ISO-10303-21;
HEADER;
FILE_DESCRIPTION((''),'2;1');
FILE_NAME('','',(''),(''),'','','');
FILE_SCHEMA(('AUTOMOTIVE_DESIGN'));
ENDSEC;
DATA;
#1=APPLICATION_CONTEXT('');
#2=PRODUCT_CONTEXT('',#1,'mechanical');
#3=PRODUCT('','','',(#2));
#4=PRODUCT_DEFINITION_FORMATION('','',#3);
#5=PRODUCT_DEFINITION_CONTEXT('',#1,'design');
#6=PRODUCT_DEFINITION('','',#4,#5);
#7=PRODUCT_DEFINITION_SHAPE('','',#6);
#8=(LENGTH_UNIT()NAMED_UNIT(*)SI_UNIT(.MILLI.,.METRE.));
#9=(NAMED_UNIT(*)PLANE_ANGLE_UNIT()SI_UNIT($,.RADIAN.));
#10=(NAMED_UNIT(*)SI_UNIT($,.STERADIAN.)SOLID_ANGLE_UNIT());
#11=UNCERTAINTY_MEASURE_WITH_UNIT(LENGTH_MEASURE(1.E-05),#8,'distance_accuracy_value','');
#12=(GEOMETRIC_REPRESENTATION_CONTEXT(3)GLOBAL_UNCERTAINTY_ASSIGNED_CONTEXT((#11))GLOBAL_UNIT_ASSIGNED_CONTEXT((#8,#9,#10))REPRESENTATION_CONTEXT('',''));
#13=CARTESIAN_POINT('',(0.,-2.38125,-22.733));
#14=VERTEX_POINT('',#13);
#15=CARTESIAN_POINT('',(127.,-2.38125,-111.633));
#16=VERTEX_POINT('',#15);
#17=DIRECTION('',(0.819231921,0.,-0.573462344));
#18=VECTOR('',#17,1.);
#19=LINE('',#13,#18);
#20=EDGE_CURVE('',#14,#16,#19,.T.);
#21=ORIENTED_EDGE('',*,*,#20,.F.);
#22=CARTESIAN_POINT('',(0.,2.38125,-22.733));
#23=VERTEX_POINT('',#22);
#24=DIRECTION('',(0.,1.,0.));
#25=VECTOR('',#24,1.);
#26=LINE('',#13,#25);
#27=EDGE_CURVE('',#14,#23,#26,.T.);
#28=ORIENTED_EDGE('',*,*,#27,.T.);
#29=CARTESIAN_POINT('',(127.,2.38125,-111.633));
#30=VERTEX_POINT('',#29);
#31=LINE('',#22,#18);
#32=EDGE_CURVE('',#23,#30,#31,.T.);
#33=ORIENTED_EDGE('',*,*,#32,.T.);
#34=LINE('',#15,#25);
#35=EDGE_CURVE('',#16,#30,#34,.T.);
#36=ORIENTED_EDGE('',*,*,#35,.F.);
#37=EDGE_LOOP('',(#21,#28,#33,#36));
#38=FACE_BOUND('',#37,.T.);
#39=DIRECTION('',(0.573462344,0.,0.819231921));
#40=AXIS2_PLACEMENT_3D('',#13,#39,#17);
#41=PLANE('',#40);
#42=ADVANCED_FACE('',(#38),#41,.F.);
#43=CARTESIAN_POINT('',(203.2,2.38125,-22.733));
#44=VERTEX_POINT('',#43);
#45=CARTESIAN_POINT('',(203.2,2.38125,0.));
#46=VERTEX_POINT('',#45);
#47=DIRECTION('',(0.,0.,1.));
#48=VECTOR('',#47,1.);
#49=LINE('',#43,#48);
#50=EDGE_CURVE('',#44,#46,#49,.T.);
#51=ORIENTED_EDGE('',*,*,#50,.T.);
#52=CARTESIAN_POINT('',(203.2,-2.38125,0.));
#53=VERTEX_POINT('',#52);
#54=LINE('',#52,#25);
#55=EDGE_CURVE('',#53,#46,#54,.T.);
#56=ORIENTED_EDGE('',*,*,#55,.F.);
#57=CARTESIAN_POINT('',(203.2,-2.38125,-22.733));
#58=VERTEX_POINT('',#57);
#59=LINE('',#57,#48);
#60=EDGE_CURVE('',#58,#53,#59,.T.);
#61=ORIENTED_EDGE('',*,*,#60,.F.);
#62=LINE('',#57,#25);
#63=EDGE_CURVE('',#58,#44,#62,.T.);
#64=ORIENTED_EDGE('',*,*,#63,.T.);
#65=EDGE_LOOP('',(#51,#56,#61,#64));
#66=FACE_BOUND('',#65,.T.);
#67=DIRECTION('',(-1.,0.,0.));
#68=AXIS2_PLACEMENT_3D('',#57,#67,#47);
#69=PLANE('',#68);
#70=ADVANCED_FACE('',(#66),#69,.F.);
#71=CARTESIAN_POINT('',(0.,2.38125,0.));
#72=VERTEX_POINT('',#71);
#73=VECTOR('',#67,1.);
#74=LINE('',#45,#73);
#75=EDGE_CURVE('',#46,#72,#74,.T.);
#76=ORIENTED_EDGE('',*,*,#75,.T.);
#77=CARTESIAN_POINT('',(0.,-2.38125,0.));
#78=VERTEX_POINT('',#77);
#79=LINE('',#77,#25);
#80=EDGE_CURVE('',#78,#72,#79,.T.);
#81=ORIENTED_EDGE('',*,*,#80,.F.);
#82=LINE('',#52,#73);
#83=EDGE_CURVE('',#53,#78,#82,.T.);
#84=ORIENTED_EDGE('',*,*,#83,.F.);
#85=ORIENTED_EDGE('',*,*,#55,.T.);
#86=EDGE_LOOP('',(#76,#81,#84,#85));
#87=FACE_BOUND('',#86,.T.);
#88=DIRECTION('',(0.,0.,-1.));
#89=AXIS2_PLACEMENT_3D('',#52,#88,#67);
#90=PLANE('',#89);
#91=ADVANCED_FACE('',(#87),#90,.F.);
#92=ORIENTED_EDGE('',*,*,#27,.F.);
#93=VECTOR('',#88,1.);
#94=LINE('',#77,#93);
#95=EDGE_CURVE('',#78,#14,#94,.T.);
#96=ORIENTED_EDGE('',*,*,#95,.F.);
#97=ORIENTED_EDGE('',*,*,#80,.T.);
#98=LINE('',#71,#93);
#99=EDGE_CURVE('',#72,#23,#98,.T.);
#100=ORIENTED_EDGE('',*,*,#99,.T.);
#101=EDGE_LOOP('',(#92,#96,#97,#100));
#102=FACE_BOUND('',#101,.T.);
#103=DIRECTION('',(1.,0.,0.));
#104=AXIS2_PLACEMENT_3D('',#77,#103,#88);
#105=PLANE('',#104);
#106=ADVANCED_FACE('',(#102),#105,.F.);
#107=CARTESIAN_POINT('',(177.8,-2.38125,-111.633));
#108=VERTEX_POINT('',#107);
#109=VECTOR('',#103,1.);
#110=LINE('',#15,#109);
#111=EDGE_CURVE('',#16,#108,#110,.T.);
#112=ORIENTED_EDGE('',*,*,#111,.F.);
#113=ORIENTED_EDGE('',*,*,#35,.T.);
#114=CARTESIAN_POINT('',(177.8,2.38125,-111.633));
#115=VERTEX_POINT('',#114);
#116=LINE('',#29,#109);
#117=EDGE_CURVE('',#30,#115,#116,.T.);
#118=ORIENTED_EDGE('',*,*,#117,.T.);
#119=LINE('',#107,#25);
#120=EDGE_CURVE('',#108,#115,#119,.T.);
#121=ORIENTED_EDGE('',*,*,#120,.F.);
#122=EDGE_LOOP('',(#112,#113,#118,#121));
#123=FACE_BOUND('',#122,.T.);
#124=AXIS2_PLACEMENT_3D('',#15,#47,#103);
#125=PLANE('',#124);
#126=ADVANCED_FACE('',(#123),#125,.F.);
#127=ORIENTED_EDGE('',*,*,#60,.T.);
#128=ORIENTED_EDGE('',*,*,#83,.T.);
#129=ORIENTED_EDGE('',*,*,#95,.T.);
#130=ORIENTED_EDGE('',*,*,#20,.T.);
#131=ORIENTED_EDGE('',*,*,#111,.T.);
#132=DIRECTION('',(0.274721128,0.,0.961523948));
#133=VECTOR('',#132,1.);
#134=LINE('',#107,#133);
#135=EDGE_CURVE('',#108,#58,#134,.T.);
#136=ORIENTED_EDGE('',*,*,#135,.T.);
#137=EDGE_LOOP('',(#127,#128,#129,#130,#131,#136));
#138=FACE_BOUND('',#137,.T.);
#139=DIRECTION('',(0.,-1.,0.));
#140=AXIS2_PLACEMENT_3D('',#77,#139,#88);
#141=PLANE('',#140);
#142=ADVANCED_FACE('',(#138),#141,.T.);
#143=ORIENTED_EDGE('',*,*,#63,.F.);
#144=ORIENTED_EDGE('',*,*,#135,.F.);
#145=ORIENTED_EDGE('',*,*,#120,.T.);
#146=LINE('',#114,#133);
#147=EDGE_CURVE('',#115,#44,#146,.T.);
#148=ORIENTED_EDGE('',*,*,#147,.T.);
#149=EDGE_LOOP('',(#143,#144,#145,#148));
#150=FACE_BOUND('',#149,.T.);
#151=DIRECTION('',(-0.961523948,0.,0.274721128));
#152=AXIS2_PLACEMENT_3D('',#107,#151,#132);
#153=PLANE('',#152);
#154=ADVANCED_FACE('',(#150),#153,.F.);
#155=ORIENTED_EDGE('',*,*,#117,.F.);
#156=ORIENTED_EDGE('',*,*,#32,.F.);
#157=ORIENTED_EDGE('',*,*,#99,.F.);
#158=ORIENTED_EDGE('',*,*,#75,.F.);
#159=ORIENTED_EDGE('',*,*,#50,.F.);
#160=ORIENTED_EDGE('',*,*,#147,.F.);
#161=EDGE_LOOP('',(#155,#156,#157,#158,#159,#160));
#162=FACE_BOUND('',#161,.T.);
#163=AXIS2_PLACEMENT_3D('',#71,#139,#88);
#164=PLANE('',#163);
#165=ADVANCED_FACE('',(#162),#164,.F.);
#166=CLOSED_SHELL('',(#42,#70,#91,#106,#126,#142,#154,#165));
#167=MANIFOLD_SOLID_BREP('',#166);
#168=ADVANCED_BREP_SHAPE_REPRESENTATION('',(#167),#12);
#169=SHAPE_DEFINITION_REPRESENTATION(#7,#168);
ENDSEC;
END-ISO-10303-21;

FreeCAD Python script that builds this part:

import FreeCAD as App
import Part
import Sketcher
from FreeCAD import Vector
Q = App.Units.Quantity


def add_polygon(sketch, points):
    """Adds a closed chain of lines whose ends are joined by coincident constraints."""
    first, n = sketch.GeometryCount, len(points)
    for a, b in zip(points, points[1:] + points[:1]):
        sketch.addGeometry(Part.LineSegment(App.Vector(*a, 0), App.Vector(*b, 0)), False)
    for i in range(n):
        sketch.addConstraint(Sketcher.Constraint("Coincident", first + i, 2, first + (i + 1) % n, 1))

doc = App.newDocument("Part")
params = doc.addObject("Spreadsheet::Sheet", "Params")
for row, (alias, value) in enumerate([
    ("sketch1_width", "8 in"),
    ("sketch1_width2", "2 in"),
    ("sketch1_height", "0.895 in"),
    ("pad1_length", "0.09375 in"),
    ("pad1_length2", "0.09375 in"),
], start=1):
    params.set(f"A{row}", alias)
    params.set(f"B{row}", "=" + value)
    params.setAlias(f"B{row}", alias)

body = doc.addObject("PartDesign::Body", "Body")

# Sketch on XZ plane
sketch1 = doc.addObject("Sketcher::SketchObject", "Sketch")
body.addObject(sketch1)
sketch1.AttachmentSupport = (doc.XZ_Plane, [""])
sketch1.MapMode = "FlatFace"
add_polygon(sketch1, [(0, -23), (0, 0), (203, 0), (203, -23), (178, -112), (127, -112)])  # lines 0-5
sketch1.addConstraint([
    Sketcher.Constraint("Vertical", 0),
    Sketcher.Constraint("Horizontal", 1),
    Sketcher.Constraint("Vertical", 2),
    Sketcher.Constraint("Horizontal", 4),
    Sketcher.Constraint("Coincident", 0, 2, -1, 1),
    Sketcher.Constraint("Horizontal", 2, 2, 5, 2),
    Sketcher.Constraint("DistanceX", 1, 1, 1, 2, Q("8 in")),
    Sketcher.Constraint("DistanceX", 4, 2, 4, 1, Q("2 in")),
    Sketcher.Constraint("DistanceX", -1, 1, 3, 2, Q("7 in")),
    Sketcher.Constraint("DistanceY", 3, 2, 2, 2, Q("3.5 in")),
    Sketcher.Constraint("DistanceY", 0, 1, 0, 2, Q("0.895 in")),
])
sketch1.setExpression("Constraints[12]", "Params.sketch1_width")
sketch1.setExpression("Constraints[13]", "Params.sketch1_width2")
sketch1.setExpression("Constraints[16]", "Params.sketch1_height")
pad1 = doc.addObject("PartDesign::Pad", "Pad")
body.addObject(pad1)
pad1.Profile = sketch1
pad1.Type = "TwoLengths"
pad1.setExpression("Length", "Params.pad1_length")
pad1.setExpression("Length2", "Params.pad1_length2")
pad1.Reversed = True

doc.recompute()
